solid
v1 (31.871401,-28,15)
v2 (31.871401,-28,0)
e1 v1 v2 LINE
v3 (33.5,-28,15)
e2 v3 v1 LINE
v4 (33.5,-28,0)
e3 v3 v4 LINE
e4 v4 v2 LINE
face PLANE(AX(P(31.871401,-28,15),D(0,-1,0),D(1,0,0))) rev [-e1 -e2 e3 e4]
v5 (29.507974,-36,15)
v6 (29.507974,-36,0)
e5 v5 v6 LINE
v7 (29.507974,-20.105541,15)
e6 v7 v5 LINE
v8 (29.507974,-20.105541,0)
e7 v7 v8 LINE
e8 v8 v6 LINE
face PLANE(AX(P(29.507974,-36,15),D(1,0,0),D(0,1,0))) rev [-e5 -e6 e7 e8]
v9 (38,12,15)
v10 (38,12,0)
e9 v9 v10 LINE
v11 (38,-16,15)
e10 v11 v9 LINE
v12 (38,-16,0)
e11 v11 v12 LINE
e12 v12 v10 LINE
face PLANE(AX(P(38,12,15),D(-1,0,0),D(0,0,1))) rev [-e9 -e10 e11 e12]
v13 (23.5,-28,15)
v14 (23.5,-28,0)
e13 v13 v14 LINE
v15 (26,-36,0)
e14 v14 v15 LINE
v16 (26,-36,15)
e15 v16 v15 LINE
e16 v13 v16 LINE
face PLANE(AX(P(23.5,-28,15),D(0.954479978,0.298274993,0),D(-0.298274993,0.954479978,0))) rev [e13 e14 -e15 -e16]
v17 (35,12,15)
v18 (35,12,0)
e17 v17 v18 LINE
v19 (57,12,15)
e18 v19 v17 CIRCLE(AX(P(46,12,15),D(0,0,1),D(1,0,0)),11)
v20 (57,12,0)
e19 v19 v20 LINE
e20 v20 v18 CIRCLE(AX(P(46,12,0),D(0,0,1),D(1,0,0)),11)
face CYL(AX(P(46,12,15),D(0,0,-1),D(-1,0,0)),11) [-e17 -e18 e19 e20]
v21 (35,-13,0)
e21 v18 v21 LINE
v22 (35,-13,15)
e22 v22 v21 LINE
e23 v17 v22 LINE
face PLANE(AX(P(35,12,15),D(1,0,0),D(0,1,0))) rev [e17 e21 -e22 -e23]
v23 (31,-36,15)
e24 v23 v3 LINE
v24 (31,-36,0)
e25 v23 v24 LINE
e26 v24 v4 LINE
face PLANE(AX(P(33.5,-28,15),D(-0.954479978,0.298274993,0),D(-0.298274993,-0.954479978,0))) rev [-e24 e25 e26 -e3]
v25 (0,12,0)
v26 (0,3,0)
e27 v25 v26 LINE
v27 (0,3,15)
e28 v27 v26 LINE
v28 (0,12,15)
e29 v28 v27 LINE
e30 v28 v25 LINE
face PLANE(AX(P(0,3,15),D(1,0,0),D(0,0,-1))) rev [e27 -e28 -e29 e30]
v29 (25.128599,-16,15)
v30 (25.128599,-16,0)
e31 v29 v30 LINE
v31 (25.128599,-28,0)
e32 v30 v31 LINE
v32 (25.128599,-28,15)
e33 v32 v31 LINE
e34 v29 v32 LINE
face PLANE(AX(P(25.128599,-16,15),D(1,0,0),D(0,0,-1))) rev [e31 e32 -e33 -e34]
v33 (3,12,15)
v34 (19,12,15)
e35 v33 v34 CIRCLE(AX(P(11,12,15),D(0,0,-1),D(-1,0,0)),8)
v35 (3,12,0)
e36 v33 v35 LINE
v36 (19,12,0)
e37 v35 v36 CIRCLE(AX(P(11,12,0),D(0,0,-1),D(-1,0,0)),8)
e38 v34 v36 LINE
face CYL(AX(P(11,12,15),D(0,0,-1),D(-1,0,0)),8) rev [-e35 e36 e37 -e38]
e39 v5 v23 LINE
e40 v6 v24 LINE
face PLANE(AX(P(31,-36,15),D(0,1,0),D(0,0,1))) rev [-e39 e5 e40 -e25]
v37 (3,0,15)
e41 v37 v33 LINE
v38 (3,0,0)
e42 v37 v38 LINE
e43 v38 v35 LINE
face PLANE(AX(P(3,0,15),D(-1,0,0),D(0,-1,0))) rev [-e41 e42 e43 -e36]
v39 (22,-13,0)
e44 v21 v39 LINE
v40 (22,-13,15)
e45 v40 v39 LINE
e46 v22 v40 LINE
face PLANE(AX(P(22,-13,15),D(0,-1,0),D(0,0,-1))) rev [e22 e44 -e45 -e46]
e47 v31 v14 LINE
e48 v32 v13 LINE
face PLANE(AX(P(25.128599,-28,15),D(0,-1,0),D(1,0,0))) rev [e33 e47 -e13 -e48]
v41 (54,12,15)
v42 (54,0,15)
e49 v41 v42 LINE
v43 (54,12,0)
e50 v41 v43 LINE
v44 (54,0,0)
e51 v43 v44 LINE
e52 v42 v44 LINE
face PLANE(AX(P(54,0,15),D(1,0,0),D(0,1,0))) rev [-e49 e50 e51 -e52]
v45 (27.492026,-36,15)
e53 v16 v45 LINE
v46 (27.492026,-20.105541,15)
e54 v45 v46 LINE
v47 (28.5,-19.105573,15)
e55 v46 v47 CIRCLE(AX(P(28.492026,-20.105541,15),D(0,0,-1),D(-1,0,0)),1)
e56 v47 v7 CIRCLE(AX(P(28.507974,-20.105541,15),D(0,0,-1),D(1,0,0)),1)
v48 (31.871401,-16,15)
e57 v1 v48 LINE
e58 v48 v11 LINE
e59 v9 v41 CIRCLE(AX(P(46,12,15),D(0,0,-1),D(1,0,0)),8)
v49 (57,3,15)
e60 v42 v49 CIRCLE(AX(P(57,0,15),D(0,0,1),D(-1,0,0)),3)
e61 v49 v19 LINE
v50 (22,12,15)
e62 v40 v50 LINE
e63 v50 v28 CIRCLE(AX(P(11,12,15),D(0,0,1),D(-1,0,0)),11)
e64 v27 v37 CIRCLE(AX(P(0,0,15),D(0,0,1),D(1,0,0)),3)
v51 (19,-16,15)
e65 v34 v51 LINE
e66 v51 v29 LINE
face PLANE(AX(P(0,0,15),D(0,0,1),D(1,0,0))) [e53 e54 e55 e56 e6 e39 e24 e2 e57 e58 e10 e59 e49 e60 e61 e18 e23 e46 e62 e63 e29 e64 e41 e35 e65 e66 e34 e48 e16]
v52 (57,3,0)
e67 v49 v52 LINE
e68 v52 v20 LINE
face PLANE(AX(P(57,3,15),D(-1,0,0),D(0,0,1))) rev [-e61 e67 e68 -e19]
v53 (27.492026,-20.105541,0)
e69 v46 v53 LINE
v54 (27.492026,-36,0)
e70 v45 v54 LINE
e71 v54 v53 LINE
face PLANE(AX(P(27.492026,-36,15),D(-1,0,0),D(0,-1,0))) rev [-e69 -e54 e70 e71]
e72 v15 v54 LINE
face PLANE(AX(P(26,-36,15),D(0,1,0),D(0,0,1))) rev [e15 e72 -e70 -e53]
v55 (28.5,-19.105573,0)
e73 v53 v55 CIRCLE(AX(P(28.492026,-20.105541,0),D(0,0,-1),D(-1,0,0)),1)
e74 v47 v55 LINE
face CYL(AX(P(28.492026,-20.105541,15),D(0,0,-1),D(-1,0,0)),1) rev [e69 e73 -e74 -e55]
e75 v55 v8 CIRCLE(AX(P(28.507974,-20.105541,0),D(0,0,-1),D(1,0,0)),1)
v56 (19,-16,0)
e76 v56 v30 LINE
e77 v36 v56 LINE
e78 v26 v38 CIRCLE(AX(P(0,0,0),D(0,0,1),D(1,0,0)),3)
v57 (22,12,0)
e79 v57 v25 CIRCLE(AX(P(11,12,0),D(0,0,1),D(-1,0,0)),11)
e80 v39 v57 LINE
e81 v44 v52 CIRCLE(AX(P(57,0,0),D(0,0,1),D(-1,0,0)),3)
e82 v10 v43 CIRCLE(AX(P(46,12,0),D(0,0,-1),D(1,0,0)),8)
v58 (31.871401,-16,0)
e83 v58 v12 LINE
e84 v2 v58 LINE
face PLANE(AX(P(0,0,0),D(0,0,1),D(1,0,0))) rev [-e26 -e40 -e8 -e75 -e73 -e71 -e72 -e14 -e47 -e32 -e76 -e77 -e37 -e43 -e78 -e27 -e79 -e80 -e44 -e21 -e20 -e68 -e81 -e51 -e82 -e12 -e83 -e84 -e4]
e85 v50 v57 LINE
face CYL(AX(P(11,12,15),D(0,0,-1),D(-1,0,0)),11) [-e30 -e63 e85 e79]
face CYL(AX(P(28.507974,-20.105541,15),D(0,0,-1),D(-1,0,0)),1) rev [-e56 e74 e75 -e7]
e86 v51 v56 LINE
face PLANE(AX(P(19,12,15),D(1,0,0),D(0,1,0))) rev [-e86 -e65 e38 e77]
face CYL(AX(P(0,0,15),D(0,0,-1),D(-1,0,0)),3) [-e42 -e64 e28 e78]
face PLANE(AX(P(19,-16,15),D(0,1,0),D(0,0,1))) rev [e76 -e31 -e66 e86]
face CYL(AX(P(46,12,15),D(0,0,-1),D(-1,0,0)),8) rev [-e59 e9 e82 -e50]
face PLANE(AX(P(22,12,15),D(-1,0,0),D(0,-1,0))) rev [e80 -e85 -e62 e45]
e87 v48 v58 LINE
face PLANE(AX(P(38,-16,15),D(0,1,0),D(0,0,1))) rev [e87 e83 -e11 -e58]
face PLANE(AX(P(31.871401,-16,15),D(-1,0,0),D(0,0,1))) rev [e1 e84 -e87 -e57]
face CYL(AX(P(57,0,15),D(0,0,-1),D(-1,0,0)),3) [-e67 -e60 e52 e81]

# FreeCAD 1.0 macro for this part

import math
import FreeCAD as App
import Part
import Sketcher
from FreeCAD import Vector

doc = App.newDocument("Part")
body = doc.addObject("PartDesign::Body", "Body")

# Sketch on XY plane
sketch1 = doc.addObject("Sketcher::SketchObject", "Sketch")
body.addObject(sketch1)
sketch1.AttachmentSupport = (doc.XY_Plane, [""])
sketch1.MapMode = "FlatFace"
sketch1.addGeometry([
    Part.LineSegment(Vector(0, 12, 0), Vector(0, 3, 0)),  # 0
    Part.ArcOfCircle(Part.Circle(Vector(0, 0, 0), Vector(0, 0, 1), 3), math.radians(90), math.radians(360)),  # 1
    Part.LineSegment(Vector(3, 0, 0), Vector(3, 12, 0)),  # 2
    Part.ArcOfCircle(Part.Circle(Vector(11, 12, 0), Vector(0, 0, 1), 8), math.radians(0), math.radians(180)),  # 3
    Part.LineSegment(Vector(19, 12, 0), Vector(19, -16, 0)),  # 4
    Part.LineSegment(Vector(19, -16, 0), Vector(25.128599, -16, 0)),  # 5
    Part.LineSegment(Vector(25.128599, -16, 0), Vector(25.128599, -28, 0)),  # 6
    Part.LineSegment(Vector(25.128599, -28, 0), Vector(23.5, -28, 0)),  # 7
    Part.LineSegment(Vector(23.5, -28, 0), Vector(26, -36, 0)),  # 8
    Part.LineSegment(Vector(26, -36, 0), Vector(27.492026, -36, 0)),  # 9
    Part.LineSegment(Vector(27.492026, -36, 0), Vector(27.492026, -20.105541, 0)),  # 10
    Part.ArcOfCircle(Part.Circle(Vector(28.492026, -20.105541, 0), Vector(0, 0, 1), 1), math.radians(89.543115), math.radians(180)),  # 11
    Part.ArcOfCircle(Part.Circle(Vector(28.507974, -20.105541, 0), Vector(0, 0, 1), 1), math.radians(0), math.radians(90.456885)),  # 12
    Part.LineSegment(Vector(29.507974, -20.105541, 0), Vector(29.507974, -36, 0)),  # 13
    Part.LineSegment(Vector(29.507974, -36, 0), Vector(31, -36, 0)),  # 14
    Part.LineSegment(Vector(31, -36, 0), Vector(33.5, -28, 0)),  # 15
    Part.LineSegment(Vector(33.5, -28, 0), Vector(31.871401, -28, 0)),  # 16
    Part.LineSegment(Vector(31.871401, -28, 0), Vector(31.871401, -16, 0)),  # 17
    Part.LineSegment(Vector(31.871401, -16, 0), Vector(38, -16, 0)),  # 18
    Part.LineSegment(Vector(38, -16, 0), Vector(38, 12, 0)),  # 19
    Part.ArcOfCircle(Part.Circle(Vector(46, 12, 0), Vector(0, 0, 1), 8), math.radians(0), math.radians(180)),  # 20
    Part.LineSegment(Vector(54, 12, 0), Vector(54, 0, 0)),  # 21
    Part.ArcOfCircle(Part.Circle(Vector(57, 0, 0), Vector(0, 0, 1), 3), math.radians(180), math.radians(450)),  # 22
    Part.LineSegment(Vector(57, 3, 0), Vector(57, 12, 0)),  # 23
    Part.ArcOfCircle(Part.Circle(Vector(46, 12, 0), Vector(0, 0, 1), 11), math.radians(0), math.radians(180)),  # 24
    Part.LineSegment(Vector(35, 12, 0), Vector(35, -13, 0)),  # 25
    Part.LineSegment(Vector(35, -13, 0), Vector(22, -13, 0)),  # 26
    Part.LineSegment(Vector(22, -13, 0), Vector(22, 12, 0)),  # 27
    Part.ArcOfCircle(Part.Circle(Vector(11, 12, 0), Vector(0, 0, 1), 11), math.radians(0), math.radians(180)),  # 28
], False)
sketch1.addConstraint([
    Sketcher.Constraint("Coincident", 0, 2, 1, 1),
    Sketcher.Constraint("Tangent", 1, 2, 2, 1),
    Sketcher.Constraint("Tangent", 2, 2, 3, 2),
    Sketcher.Constraint("Tangent", 3, 1, 4, 1),
    Sketcher.Constraint("Coincident", 4, 2, 5, 1),
    Sketcher.Constraint("Coincident", 5, 2, 6, 1),
    Sketcher.Constraint("Coincident", 6, 2, 7, 1),
    Sketcher.Constraint("Coincident", 7, 2, 8, 1),
    Sketcher.Constraint("Coincident", 8, 2, 9, 1),
    Sketcher.Constraint("Coincident", 9, 2, 10, 1),
    Sketcher.Constraint("Tangent", 10, 2, 11, 2),
    Sketcher.Constraint("Coincident", 11, 1, 12, 2),
    Sketcher.Constraint("Tangent", 12, 1, 13, 1),
    Sketcher.Constraint("Coincident", 13, 2, 14, 1),
    Sketcher.Constraint("Coincident", 14, 2, 15, 1),
    Sketcher.Constraint("Coincident", 15, 2, 16, 1),
    Sketcher.Constraint("Coincident", 16, 2, 17, 1),
    Sketcher.Constraint("Coincident", 17, 2, 18, 1),
    Sketcher.Constraint("Coincident", 18, 2, 19, 1),
    Sketcher.Constraint("Tangent", 19, 2, 20, 2),
    Sketcher.Constraint("Tangent", 20, 1, 21, 1),
    Sketcher.Constraint("Tangent", 21, 2, 22, 1),
    Sketcher.Constraint("Coincident", 22, 2, 23, 1),
    Sketcher.Constraint("Tangent", 23, 2, 24, 1),
    Sketcher.Constraint("Tangent", 24, 2, 25, 1),
    Sketcher.Constraint("Coincident", 25, 2, 26, 1),
    Sketcher.Constraint("Coincident", 26, 2, 27, 1),
    Sketcher.Constraint("Tangent", 27, 2, 28, 1),
    Sketcher.Constraint("Tangent", 28, 2, 0, 1),
    Sketcher.Constraint("Vertical", 0),
    Sketcher.Constraint("Vertical", 2),
    Sketcher.Constraint("Vertical", 4),
    Sketcher.Constraint("Horizontal", 5),
    Sketcher.Constraint("Vertical", 6),
    Sketcher.Constraint("Horizontal", 7),
    Sketcher.Constraint("Horizontal", 9),
    Sketcher.Constraint("Vertical", 10),
    Sketcher.Constraint("Vertical", 13),
    Sketcher.Constraint("Horizontal", 14),
    Sketcher.Constraint("Horizontal", 16),
    Sketcher.Constraint("Vertical", 17),
    Sketcher.Constraint("Horizontal", 18),
    Sketcher.Constraint("Vertical", 19),
    Sketcher.Constraint("Vertical", 21),
    Sketcher.Constraint("Vertical", 23),
    Sketcher.Constraint("Vertical", 25),
    Sketcher.Constraint("Horizontal", 26),
    Sketcher.Constraint("Vertical", 27),
    Sketcher.Constraint("Coincident", 1, 3, -1, 1),
    Sketcher.Constraint("Coincident", 24, 3, 20, 3),
    Sketcher.Constraint("Coincident", 28, 3, 3, 3),
    Sketcher.Constraint("Equal", 11, 12),
    Sketcher.Constraint("Equal", 3, 20),
    Sketcher.Constraint("Equal", 1, 22),
    Sketcher.Constraint("Equal", 24, 28),
    Sketcher.Constraint("PointOnObject", 22, 3, -1),
    Sketcher.Constraint("PointOnObject", 0, 2, -2),
    Sketcher.Constraint("Horizontal", 11, 3, 12, 3),
    Sketcher.Constraint("Horizontal", 3, 3, 20, 3),
    Sketcher.Constraint("Horizontal", 9, 2, 13, 2),
    Sketcher.Constraint("Horizontal", 7, 2, 15, 2),
    Sketcher.Constraint("Horizontal", 5, 2, 17, 2),
    Sketcher.Constraint("Equal", 9, 14),
    Sketcher.Constraint("Equal", 7, 16),
    Sketcher.Constraint("Equal", 5, 18),
    Sketcher.Constraint("Equal", 2, 6),
    Sketcher.Constraint("Equal", 8, 15),
    Sketcher.Constraint("Radius", 1, 3.0),
    Sketcher.Constraint("Radius", 3, 8.0),
    Sketcher.Constraint("Radius", 11, 1.0),
    Sketcher.Constraint("DistanceX", 26, 2, 26, 1, 13.0),
    Sketcher.Constraint("DistanceY", 0, 2, 0, 1, 9.0),
    Sketcher.Constraint("DistanceY", 4, 2, 4, 1, 28.0),
    Sketcher.Constraint("DistanceY", 25, 2, 25, 1, 25.0),
    Sketcher.Constraint("DistanceX", -1, 1, 8, 2, 26.0),
    Sketcher.Constraint("DistanceY", 8, 2, -1, 1, 36.0),
    Sketcher.Constraint("DistanceX", -1, 1, 7, 2, 23.5),
    Sketcher.Constraint("DistanceX", 5, 1, 5, 2, 6.128599),
    Sketcher.Constraint("DistanceY", 10, 1, 10, 2, 15.894459),
    Sketcher.Constraint("DistanceX", 9, 1, 9, 2, 1.492026),
])
pad1 = doc.addObject("PartDesign::Pad", "Pad")
body.addObject(pad1)
pad1.Profile = sketch1
pad1.Length = 15

doc.recompute()
